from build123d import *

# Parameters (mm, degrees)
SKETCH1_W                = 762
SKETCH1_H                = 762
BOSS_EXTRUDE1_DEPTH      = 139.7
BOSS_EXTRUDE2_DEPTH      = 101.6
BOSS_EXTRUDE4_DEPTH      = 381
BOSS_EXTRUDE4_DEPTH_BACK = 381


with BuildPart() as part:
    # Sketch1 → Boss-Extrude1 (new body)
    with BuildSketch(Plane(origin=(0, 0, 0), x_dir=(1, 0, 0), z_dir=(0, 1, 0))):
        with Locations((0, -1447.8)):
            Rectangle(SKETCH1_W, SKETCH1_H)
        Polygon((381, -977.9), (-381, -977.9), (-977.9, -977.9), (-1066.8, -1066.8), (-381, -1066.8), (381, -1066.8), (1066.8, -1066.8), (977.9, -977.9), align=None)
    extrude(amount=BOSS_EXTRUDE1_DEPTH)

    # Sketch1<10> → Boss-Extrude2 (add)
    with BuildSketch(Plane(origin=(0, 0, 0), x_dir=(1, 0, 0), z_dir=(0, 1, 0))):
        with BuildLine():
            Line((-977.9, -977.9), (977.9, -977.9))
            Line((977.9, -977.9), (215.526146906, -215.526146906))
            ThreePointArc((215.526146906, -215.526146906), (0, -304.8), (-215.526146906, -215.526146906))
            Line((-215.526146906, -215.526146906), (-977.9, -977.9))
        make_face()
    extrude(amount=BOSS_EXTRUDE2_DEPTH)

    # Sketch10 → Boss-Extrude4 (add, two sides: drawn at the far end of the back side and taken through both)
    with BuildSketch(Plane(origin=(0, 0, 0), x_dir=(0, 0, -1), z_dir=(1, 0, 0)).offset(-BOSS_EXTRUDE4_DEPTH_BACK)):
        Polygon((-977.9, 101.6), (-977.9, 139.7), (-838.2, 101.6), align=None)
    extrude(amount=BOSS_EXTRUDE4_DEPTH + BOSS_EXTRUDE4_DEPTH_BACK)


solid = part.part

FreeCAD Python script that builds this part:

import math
import FreeCAD as App
import Part
import Sketcher

V = App.Vector
Q = App.Units.Quantity

doc = App.newDocument("Part")
body = doc.addObject("PartDesign::Body", "Body")

# Sketch on XZ plane
sketch1 = body.newObject("Sketcher::SketchObject", "Sketch")
sketch1.AttachmentSupport = (doc.getObject("XZ_Plane"), [""])
sketch1.MapMode = "FlatFace"
sketch1.addGeometry(Part.LineSegment(V(-381, 1067, 0), V(-381, 1829, 0)), False)
sketch1.addGeometry(Part.LineSegment(V(-381, 1829, 0), V(381, 1829, 0)), False)
sketch1.addGeometry(Part.LineSegment(V(381, 1829, 0), V(381, 1067, 0)), False)
sketch1.addGeometry(Part.LineSegment(V(381, 1067, 0), V(1067, 1067, 0)), False)
sketch1.addGeometry(Part.LineSegment(V(1067, 1067, 0), V(978, 978, 0)), False)
sketch1.addGeometry(Part.LineSegment(V(978, 978, 0), V(-978, 978, 0)), False)
sketch1.addGeometry(Part.LineSegment(V(-978, 978, 0), V(-1067, 1067, 0)), False)
sketch1.addGeometry(Part.LineSegment(V(-1067, 1067, 0), V(-381, 1067, 0)), False)
sketch1.addConstraint(Sketcher.Constraint("Coincident", 0, 2, 1, 1))
sketch1.addConstraint(Sketcher.Constraint("Coincident", 1, 2, 2, 1))
sketch1.addConstraint(Sketcher.Constraint("Coincident", 2, 2, 3, 1))
sketch1.addConstraint(Sketcher.Constraint("Coincident", 3, 2, 4, 1))
sketch1.addConstraint(Sketcher.Constraint("Coincident", 4, 2, 5, 1))
sketch1.addConstraint(Sketcher.Constraint("Coincident", 5, 2, 6, 1))
sketch1.addConstraint(Sketcher.Constraint("Coincident", 6, 2, 7, 1))
sketch1.addConstraint(Sketcher.Constraint("Coincident", 7, 2, 0, 1))
sketch1.addConstraint(Sketcher.Constraint("Vertical", 0))
sketch1.addConstraint(Sketcher.Constraint("Horizontal", 1))
sketch1.addConstraint(Sketcher.Constraint("Vertical", 2))
sketch1.addConstraint(Sketcher.Constraint("Horizontal", 3))
sketch1.addConstraint(Sketcher.Constraint("Horizontal", 5))
sketch1.addConstraint(Sketcher.Constraint("Horizontal", 7))
sketch1.addConstraint(Sketcher.Constraint("Symmetric", 3, 2, 6, 2, -2))
sketch1.addConstraint(Sketcher.Constraint("Perpendicular", 4, 6))
sketch1.addConstraint(Sketcher.Constraint("Equal", 3, 7))
sketch1.addConstraint(Sketcher.Constraint("Equal", 1, 0))
sketch1.addConstraint(Sketcher.Constraint("Equal", 4, 6))
sketch1.addConstraint(Sketcher.Constraint("DistanceX", 1, 1, 1, 2, Q("30 in")))
sketch1.addConstraint(Sketcher.Constraint("DistanceX", 3, 1, 3, 2, Q("27 in")))
sketch1.addConstraint(Sketcher.Constraint("DistanceX", 5, 2, 5, 1, Q("77 in")))
sketch1.addConstraint(Sketcher.Constraint("DistanceY", -1, 1, 0, 2, Q("72 in")))
pad1 = body.newObject("PartDesign::Pad", "Pad")
pad1.Profile = sketch1
pad1.Length = Q("5.5 in")
pad1.Reversed = True

# Sketch on XZ plane
sketch2 = body.newObject("Sketcher::SketchObject", "Sketch001")
sketch2.AttachmentSupport = (doc.getObject("XZ_Plane"), [""])
sketch2.MapMode = "FlatFace"
sketch2.addGeometry(Part.LineSegment(V(-978, 978, 0), V(978, 978, 0)), False)
sketch2.addGeometry(Part.LineSegment(V(978, 978, 0), V(216, 216, 0)), False)
sketch2.addGeometry(Part.ArcOfCircle(Part.Circle(V(0, 0, 0), V(0, 0, 1), 305), math.radians(45), math.radians(135)), False)
sketch2.addGeometry(Part.LineSegment(V(-216, 216, 0), V(-978, 978, 0)), False)
sketch2.addConstraint(Sketcher.Constraint("Coincident", 0, 2, 1, 1))
sketch2.addConstraint(Sketcher.Constraint("Coincident", 1, 2, 2, 1))
sketch2.addConstraint(Sketcher.Constraint("Coincident", 2, 2, 3, 1))
sketch2.addConstraint(Sketcher.Constraint("Coincident", 3, 2, 0, 1))
sketch2.addConstraint(Sketcher.Constraint("Horizontal", 0))
sketch2.addConstraint(Sketcher.Constraint("Coincident", 2, 3, -1, 1))
sketch2.addConstraint(Sketcher.Constraint("Perpendicular", 1, 3))
sketch2.addConstraint(Sketcher.Constraint("Horizontal", 1, 2, 2, 2))
sketch2.addConstraint(Sketcher.Constraint("Equal", 1, 3))
sketch2.addConstraint(Sketcher.Constraint("Radius", 2, Q("12 in")))
sketch2.addConstraint(Sketcher.Constraint("DistanceX", 0, 1, 0, 2, Q("77 in")))
sketch2.addConstraint(Sketcher.Constraint("DistanceY", -1, 1, 0, 2, Q("38.5 in")))
pad2 = body.newObject("PartDesign::Pad", "Pad001")
pad2.Profile = sketch2
pad2.Length = Q("4 in")
pad2.Reversed = True

# Sketch on YZ plane
sketch3 = body.newObject("Sketcher::SketchObject", "Sketch002")
sketch3.AttachmentSupport = (doc.getObject("YZ_Plane"), [""])
sketch3.MapMode = "FlatFace"
sketch3.addGeometry(Part.LineSegment(V(140, 978, 0), V(102, 978, 0)), False)
sketch3.addGeometry(Part.LineSegment(V(102, 978, 0), V(102, 838, 0)), False)
sketch3.addGeometry(Part.LineSegment(V(102, 838, 0), V(140, 978, 0)), False)
sketch3.addConstraint(Sketcher.Constraint("Coincident", 0, 2, 1, 1))
sketch3.addConstraint(Sketcher.Constraint("Coincident", 1, 2, 2, 1))
sketch3.addConstraint(Sketcher.Constraint("Coincident", 2, 2, 0, 1))
sketch3.addConstraint(Sketcher.Constraint("Horizontal", 0))
sketch3.addConstraint(Sketcher.Constraint("Vertical", 1))
sketch3.addConstraint(Sketcher.Constraint("DistanceX", 0, 2, 0, 1, Q("1.5 in")))
sketch3.addConstraint(Sketcher.Constraint("DistanceY", 1, 2, 1, 1, Q("5.5 in")))
sketch3.addConstraint(Sketcher.Constraint("DistanceX", -1, 1, 0, 2, Q("4 in")))
sketch3.addConstraint(Sketcher.Constraint("DistanceY", -1, 1, 1, 2, Q("33 in")))
pad3 = body.newObject("PartDesign::Pad", "Pad002")
pad3.Profile = sketch3
pad3.Type = "TwoLengths"
pad3.Length = Q("15 in")
pad3.Length2 = Q("15 in")

doc.recompute()
